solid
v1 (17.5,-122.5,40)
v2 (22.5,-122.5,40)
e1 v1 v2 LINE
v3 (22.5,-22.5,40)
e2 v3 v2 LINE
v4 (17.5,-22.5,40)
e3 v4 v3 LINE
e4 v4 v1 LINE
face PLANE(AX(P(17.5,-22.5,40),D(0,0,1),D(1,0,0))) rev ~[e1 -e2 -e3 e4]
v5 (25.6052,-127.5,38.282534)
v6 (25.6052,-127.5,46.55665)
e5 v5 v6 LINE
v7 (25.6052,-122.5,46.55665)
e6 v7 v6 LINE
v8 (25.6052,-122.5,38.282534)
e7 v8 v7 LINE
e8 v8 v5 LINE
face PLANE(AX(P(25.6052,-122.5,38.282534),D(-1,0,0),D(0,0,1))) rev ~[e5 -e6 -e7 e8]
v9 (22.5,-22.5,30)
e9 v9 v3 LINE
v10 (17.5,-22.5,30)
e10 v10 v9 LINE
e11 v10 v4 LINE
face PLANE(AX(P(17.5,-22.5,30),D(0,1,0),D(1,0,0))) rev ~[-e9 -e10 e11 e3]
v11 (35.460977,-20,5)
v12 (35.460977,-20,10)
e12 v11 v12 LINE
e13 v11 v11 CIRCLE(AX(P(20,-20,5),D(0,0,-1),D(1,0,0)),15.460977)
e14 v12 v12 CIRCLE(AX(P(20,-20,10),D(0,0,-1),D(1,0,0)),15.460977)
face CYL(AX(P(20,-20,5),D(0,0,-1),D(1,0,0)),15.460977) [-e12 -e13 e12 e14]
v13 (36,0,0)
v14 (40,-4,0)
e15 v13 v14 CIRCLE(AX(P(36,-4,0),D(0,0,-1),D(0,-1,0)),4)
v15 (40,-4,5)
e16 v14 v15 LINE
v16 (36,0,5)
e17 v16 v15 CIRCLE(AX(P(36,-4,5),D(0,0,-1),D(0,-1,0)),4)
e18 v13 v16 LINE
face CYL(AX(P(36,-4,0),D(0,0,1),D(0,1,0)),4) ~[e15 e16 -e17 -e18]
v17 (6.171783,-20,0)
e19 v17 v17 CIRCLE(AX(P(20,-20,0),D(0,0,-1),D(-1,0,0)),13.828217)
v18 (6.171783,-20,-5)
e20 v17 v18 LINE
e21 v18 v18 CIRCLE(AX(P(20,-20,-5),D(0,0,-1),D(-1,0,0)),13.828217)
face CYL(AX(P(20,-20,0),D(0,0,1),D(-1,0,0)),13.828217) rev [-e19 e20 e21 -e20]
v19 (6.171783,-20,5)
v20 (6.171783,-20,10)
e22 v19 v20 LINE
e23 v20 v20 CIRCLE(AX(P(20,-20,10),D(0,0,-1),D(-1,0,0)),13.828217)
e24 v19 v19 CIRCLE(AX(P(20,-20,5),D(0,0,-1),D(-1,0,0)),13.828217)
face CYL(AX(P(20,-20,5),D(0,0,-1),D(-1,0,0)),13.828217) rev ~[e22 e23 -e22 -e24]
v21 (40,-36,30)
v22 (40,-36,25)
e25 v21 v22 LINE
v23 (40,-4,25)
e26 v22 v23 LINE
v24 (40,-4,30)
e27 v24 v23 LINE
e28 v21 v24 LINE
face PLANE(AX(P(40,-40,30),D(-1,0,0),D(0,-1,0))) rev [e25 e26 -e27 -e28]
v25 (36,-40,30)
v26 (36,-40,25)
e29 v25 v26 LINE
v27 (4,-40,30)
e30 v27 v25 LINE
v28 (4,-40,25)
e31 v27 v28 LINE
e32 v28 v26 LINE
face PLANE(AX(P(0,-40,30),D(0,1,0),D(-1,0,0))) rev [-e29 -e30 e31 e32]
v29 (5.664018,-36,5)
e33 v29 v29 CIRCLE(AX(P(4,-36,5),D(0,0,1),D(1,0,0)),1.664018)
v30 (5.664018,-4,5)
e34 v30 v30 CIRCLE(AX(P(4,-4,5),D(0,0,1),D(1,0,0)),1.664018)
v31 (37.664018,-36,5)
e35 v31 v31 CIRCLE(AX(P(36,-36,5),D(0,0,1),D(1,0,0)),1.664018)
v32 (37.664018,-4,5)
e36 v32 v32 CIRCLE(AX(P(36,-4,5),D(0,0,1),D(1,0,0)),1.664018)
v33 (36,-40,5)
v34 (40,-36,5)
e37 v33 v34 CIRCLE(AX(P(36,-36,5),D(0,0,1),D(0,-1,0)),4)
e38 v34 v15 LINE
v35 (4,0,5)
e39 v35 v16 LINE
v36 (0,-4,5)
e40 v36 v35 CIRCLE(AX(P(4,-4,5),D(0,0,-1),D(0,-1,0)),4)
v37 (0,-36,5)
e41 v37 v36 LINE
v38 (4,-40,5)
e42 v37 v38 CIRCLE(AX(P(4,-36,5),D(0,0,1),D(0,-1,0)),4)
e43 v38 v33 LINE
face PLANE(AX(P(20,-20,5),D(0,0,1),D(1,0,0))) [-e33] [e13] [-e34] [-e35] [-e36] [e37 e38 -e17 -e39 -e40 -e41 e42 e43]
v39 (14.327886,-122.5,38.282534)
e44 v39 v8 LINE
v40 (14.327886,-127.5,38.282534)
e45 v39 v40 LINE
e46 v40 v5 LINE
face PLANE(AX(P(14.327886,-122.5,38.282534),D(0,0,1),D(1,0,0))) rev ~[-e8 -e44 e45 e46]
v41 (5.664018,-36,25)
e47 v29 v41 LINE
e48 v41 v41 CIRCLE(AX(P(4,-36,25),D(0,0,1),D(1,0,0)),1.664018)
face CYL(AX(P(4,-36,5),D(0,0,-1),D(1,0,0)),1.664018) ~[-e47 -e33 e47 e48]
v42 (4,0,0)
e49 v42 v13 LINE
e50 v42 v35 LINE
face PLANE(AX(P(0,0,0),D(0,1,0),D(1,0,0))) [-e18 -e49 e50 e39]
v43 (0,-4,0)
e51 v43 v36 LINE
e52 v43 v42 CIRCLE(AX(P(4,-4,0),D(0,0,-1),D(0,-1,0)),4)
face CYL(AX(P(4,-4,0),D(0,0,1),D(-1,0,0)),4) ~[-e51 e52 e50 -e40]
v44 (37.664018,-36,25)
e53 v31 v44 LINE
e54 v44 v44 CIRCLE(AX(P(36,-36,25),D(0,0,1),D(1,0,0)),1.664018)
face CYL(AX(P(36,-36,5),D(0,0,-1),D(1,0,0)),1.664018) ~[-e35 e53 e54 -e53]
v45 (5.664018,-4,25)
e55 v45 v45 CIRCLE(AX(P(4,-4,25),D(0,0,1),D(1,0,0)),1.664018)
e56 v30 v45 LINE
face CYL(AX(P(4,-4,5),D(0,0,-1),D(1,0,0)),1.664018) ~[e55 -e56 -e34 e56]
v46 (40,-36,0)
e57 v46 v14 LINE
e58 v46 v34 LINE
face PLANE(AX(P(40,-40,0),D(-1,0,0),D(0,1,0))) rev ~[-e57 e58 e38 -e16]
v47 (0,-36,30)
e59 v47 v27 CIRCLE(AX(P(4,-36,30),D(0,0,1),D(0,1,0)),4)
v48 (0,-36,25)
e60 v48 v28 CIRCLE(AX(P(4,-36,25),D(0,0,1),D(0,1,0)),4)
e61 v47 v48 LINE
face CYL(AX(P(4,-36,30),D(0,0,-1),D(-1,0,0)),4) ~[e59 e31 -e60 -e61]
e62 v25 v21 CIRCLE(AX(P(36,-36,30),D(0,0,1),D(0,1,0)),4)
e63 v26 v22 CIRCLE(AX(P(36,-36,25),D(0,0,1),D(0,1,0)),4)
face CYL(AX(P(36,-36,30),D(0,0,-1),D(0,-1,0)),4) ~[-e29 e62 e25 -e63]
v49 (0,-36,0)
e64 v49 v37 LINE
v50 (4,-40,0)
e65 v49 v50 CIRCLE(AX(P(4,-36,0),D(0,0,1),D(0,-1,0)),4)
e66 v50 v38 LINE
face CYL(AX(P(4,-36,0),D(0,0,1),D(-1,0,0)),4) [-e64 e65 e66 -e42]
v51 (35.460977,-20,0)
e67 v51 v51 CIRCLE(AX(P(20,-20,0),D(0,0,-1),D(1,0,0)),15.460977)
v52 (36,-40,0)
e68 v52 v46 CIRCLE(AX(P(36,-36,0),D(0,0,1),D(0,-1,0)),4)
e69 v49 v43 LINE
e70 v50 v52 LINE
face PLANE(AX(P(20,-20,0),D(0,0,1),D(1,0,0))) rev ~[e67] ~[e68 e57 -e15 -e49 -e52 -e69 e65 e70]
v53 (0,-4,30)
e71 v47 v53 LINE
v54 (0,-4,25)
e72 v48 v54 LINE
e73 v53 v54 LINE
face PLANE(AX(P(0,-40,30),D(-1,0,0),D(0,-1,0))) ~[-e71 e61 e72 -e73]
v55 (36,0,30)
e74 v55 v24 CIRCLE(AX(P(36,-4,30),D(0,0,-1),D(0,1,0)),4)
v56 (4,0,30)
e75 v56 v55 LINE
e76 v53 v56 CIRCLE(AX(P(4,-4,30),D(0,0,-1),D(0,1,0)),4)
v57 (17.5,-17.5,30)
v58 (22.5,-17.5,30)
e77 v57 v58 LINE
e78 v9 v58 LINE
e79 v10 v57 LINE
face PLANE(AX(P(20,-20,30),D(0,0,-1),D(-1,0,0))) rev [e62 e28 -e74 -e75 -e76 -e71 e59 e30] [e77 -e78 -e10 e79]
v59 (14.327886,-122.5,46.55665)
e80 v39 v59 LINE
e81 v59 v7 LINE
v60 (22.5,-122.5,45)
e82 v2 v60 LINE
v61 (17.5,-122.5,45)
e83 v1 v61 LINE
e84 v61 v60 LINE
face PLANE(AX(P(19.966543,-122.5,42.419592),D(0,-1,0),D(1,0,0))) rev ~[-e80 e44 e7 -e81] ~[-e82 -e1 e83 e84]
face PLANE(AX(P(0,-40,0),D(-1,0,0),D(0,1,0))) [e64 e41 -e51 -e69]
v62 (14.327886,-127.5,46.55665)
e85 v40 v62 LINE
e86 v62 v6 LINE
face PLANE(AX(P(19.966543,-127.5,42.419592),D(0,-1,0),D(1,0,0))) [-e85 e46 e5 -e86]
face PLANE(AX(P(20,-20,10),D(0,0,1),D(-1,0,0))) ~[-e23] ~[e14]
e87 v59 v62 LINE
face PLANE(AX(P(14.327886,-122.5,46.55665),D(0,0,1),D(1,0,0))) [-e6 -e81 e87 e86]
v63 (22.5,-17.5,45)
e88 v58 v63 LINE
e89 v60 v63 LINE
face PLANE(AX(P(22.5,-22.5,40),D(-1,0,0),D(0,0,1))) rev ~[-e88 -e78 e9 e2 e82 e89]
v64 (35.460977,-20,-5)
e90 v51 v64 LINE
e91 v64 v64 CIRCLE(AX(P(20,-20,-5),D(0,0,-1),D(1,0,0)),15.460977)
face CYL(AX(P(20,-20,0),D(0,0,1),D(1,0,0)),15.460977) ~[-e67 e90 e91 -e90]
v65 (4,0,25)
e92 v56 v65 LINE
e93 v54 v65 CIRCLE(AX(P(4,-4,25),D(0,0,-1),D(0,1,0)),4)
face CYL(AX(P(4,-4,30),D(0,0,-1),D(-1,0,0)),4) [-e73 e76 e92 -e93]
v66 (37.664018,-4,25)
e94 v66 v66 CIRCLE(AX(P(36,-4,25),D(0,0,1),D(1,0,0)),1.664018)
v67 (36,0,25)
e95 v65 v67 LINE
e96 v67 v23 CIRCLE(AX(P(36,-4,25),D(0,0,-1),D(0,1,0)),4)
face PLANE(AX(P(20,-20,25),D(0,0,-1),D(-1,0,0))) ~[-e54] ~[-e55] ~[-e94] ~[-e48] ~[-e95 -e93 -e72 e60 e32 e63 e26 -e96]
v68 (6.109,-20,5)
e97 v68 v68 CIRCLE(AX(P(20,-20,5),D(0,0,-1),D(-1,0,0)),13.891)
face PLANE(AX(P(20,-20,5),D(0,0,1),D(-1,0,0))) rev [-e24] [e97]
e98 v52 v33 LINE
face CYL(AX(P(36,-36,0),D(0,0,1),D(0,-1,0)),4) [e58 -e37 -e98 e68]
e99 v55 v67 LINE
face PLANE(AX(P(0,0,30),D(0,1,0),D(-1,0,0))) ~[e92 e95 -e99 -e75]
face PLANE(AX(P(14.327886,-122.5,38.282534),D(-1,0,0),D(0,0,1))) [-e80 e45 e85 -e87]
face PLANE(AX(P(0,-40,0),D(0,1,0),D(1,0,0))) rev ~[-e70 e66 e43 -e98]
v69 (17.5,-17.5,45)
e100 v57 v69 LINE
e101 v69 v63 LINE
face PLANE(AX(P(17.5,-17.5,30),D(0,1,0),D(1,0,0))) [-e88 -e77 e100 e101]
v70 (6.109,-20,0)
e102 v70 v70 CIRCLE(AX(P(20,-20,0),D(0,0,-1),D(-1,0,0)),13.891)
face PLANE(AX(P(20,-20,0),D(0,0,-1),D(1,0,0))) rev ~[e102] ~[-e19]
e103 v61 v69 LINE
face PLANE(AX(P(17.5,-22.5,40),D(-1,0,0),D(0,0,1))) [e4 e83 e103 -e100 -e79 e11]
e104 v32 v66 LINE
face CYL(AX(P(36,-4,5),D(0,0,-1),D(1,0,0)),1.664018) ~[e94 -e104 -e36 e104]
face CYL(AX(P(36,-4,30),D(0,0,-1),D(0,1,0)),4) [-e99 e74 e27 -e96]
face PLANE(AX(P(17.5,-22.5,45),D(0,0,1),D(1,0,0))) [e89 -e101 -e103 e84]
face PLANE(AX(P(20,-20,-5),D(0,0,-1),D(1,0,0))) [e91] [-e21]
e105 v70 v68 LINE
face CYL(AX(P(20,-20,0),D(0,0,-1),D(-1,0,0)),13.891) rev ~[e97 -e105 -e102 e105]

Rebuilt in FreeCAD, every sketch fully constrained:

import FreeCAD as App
import Part
import Sketcher

V = App.Vector


def edges_at(feature, points):
    """Names of the edges that pass closest to the given points."""
    edges = feature.Shape.Edges
    near = lambda p: min(range(len(edges)), key=lambda i: edges[i].distToShape(Part.Vertex(*p))[0])
    return sorted({f"Edge{near(p) + 1}" for p in points})

doc = App.newDocument("Part")
body = doc.addObject("PartDesign::Body", "Body")

sketch1 = doc.addObject("Sketcher::SketchObject", "Sketch")
body.addObject(sketch1)
sketch1.AttachmentSupport = (doc.XY_Plane, [""])
sketch1.MapMode = "FlatFace"
sketch1.addGeometry([
    Part.LineSegment(V(0, 0, 0), V(0, -40, 0)),
    Part.LineSegment(V(0, -40, 0), V(40, -40, 0)),
    Part.LineSegment(V(40, -40, 0), V(40, 0, 0)),
    Part.LineSegment(V(40, 0, 0), V(0, 0, 0)),
], False)
sketch1.addConstraint([
    Sketcher.Constraint("Coincident", 0, 2, 1, 1),
    Sketcher.Constraint("Coincident", 1, 2, 2, 1),
    Sketcher.Constraint("Coincident", 2, 2, 3, 1),
    Sketcher.Constraint("Coincident", 3, 2, 0, 1),
    Sketcher.Constraint("Vertical", 0),
    Sketcher.Constraint("Horizontal", 1),
    Sketcher.Constraint("Vertical", 2),
    Sketcher.Constraint("Horizontal", 3),
    Sketcher.Constraint("Coincident", 3, 2, -1, 1),
    Sketcher.Constraint("Equal", 3, 0),
    Sketcher.Constraint("DistanceX", 1, 1, 1, 2, 40.0),
])
pad1 = doc.addObject("PartDesign::Pad", "Pad")
body.addObject(pad1)
pad1.Profile = sketch1
pad1.Length = 5

sketch2 = doc.addObject("Sketcher::SketchObject", "Sketch001")
body.addObject(sketch2)
sketch2.AttachmentSupport = (doc.XY_Plane, [""])
sketch2.MapMode = "FlatFace"
sketch2.addGeometry(Part.Circle(V(20, -20, 0), V(0, 0, 1), 14), False)
sketch2.addConstraint([
    Sketcher.Constraint("Diameter", 0, 27.782),
    Sketcher.Constraint("DistanceX", -1, 1, 0, 3, 20.0),
    Sketcher.Constraint("DistanceY", 0, 3, -1, 1, 20.0),
])
pocket1 = doc.addObject("PartDesign::Pocket", "Pocket")
body.addObject(pocket1)
pocket1.Profile = sketch2
pocket1.Type = "ThroughAll"
pocket1.Reversed = True

sketch3 = doc.addObject("Sketcher::SketchObject", "Sketch002")
body.addObject(sketch3)
sketch3.AttachmentSupport = (doc.XY_Plane, [""])
sketch3.MapMode = "FlatFace"
sketch3.AttachmentOffset = App.Placement(V(0, 0, 5), App.Rotation())
sketch3.addGeometry([
    Part.Circle(V(4, -4, 0), V(0, 0, 1), 1.7),
    Part.Circle(V(36, -4, 0), V(0, 0, 1), 1.7),
    Part.Circle(V(36, -36, 0), V(0, 0, 1), 1.7),
    Part.Circle(V(4, -36, 0), V(0, 0, 1), 1.7),
], False)
sketch3.addConstraint([
    Sketcher.Constraint("Equal", 0, 1),
    Sketcher.Constraint("Equal", 1, 2),
    Sketcher.Constraint("Equal", 2, 3),
    Sketcher.Constraint("Horizontal", 0, 3, 1, 3),
    Sketcher.Constraint("Horizontal", 2, 3, 3, 3),
    Sketcher.Constraint("Vertical", 1, 3, 2, 3),
    Sketcher.Constraint("Vertical", 0, 3, 3, 3),
    Sketcher.Constraint("DistanceX", -1, 1, 0, 3, 4.0),
    Sketcher.Constraint("DistanceY", 0, 3, -1, 1, 4.0),
    Sketcher.Constraint("DistanceX", -1, 1, 1, 3, 36.0),
    Sketcher.Constraint("DistanceY", 2, 3, -1, 1, 36.0),
    Sketcher.Constraint("Diameter", 0, 3.328035),
])
pad2 = doc.addObject("PartDesign::Pad", "Pad001")
body.addObject(pad2)
pad2.Profile = sketch3
pad2.Length = 20
doc.recompute()

datumplane = doc.addObject("PartDesign::Plane", "DatumPlane")
body.addObject(datumplane)
datumplane.AttachmentSupport = (doc.XY_Plane, [""])
datumplane.MapMode = "FlatFace"
datumplane.AttachmentOffset = App.Placement(V(0, 0, 15), App.Rotation())
mirrored = doc.addObject("PartDesign::Mirrored", "Mirrored")
body.addObject(mirrored)
mirrored.Originals = [pad1]
mirrored.MirrorPlane = (datumplane, [""])
body.Tip = mirrored

sketch4 = doc.addObject("Sketcher::SketchObject", "Sketch003")
body.addObject(sketch4)
sketch4.AttachmentSupport = (doc.XY_Plane, [""])
sketch4.MapMode = "FlatFace"
sketch4.AttachmentOffset = App.Placement(V(0, 0, 30), App.Rotation())
sketch4.addGeometry([
    Part.LineSegment(V(18, -18, 0), V(18, -22, 0)),
    Part.LineSegment(V(18, -22, 0), V(22, -22, 0)),
    Part.LineSegment(V(22, -22, 0), V(22, -18, 0)),
    Part.LineSegment(V(22, -18, 0), V(18, -18, 0)),
], False)
sketch4.addConstraint([
    Sketcher.Constraint("Coincident", 0, 2, 1, 1),
    Sketcher.Constraint("Coincident", 1, 2, 2, 1),
    Sketcher.Constraint("Coincident", 2, 2, 3, 1),
    Sketcher.Constraint("Coincident", 3, 2, 0, 1),
    Sketcher.Constraint("Vertical", 0),
    Sketcher.Constraint("Horizontal", 1),
    Sketcher.Constraint("Vertical", 2),
    Sketcher.Constraint("Horizontal", 3),
    Sketcher.Constraint("Equal", 3, 0),
    Sketcher.Constraint("DistanceX", 1, 1, 1, 2, 5.0),
    Sketcher.Constraint("DistanceX", -1, 1, 0, 2, 17.5),
    Sketcher.Constraint("DistanceY", 0, 2, -1, 1, 22.5),
])
pad3 = doc.addObject("PartDesign::Pad", "Pad002")
body.addObject(pad3)
pad3.Profile = sketch4
pad3.Length = 15

sketch5 = doc.addObject("Sketcher::SketchObject", "Sketch004")
body.addObject(sketch5)
sketch5.AttachmentSupport = (doc.XZ_Plane, [""])
sketch5.MapMode = "FlatFace"
sketch5.AttachmentOffset = App.Placement(V(0, 0, 22.5), App.Rotation())
sketch5.addGeometry([
    Part.LineSegment(V(18, 45, 0), V(18, 40, 0)),
    Part.LineSegment(V(18, 40, 0), V(22, 40, 0)),
    Part.LineSegment(V(22, 40, 0), V(22, 45, 0)),
    Part.LineSegment(V(22, 45, 0), V(18, 45, 0)),
], False)
sketch5.addConstraint([
    Sketcher.Constraint("Coincident", 0, 2, 1, 1),
    Sketcher.Constraint("Coincident", 1, 2, 2, 1),
    Sketcher.Constraint("Coincident", 2, 2, 3, 1),
    Sketcher.Constraint("Coincident", 3, 2, 0, 1),
    Sketcher.Constraint("Vertical", 0),
    Sketcher.Constraint("Horizontal", 1),
    Sketcher.Constraint("Vertical", 2),
    Sketcher.Constraint("Horizontal", 3),
    Sketcher.Constraint("Equal", 3, 0),
    Sketcher.Constraint("DistanceX", 1, 1, 1, 2, 5.0),
    Sketcher.Constraint("DistanceY", -1, 1, 0, 2, 40.0),
    Sketcher.Constraint("DistanceX", -1, 1, 0, 2, 17.5),
])
pad4 = doc.addObject("PartDesign::Pad", "Pad003")
body.addObject(pad4)
pad4.Profile = sketch5
pad4.Length = 100

sketch6 = doc.addObject("Sketcher::SketchObject", "Sketch005")
body.addObject(sketch6)
sketch6.AttachmentSupport = (doc.XY_Plane, [""])
sketch6.MapMode = "FlatFace"
sketch6.addGeometry([
    Part.Circle(V(20, -20, 0), V(0, 0, 1), 15),
    Part.Circle(V(20, -20, 0), V(0, 0, 1), 14),
], False)
sketch6.addConstraint([
    Sketcher.Constraint("Coincident", 1, 3, 0, 3),
    Sketcher.Constraint("DistanceX", -1, 1, 0, 3, 20.0),
    Sketcher.Constraint("DistanceY", 0, 3, -1, 1, 20.0),
    Sketcher.Constraint("Diameter", 0, 30.921955),
    Sketcher.Constraint("Diameter", 1, 27.656433),
])
pad5 = doc.addObject("PartDesign::Pad", "Pad004")
body.addObject(pad5)
pad5.Profile = sketch6
pad5.Length = 5
pad5.Reversed = True
doc.recompute()

datumplane2 = doc.addObject("PartDesign::Plane", "DatumPlane001")
body.addObject(datumplane2)
datumplane2.AttachmentSupport = (doc.XY_Plane, [""])
datumplane2.MapMode = "FlatFace"
datumplane2.AttachmentOffset = App.Placement(V(0, 0, 2.5), App.Rotation())
mirrored2 = doc.addObject("PartDesign::Mirrored", "Mirrored001")
body.addObject(mirrored2)
mirrored2.Originals = [pad5]
mirrored2.MirrorPlane = (datumplane2, [""])
body.Tip = mirrored2

sketch7 = doc.addObject("Sketcher::SketchObject", "Sketch006")
body.addObject(sketch7)
sketch7.AttachmentSupport = (doc.XZ_Plane, [""])
sketch7.MapMode = "FlatFace"
sketch7.AttachmentOffset = App.Placement(V(0, 0, 122.5), App.Rotation())
sketch7.addGeometry([
    Part.LineSegment(V(14, 47, 0), V(14, 38, 0)),
    Part.LineSegment(V(14, 38, 0), V(26, 38, 0)),
    Part.LineSegment(V(26, 38, 0), V(26, 47, 0)),
    Part.LineSegment(V(26, 47, 0), V(14, 47, 0)),
], False)
sketch7.addConstraint([
    Sketcher.Constraint("Coincident", 0, 2, 1, 1),
    Sketcher.Constraint("Coincident", 1, 2, 2, 1),
    Sketcher.Constraint("Coincident", 2, 2, 3, 1),
    Sketcher.Constraint("Coincident", 3, 2, 0, 1),
    Sketcher.Constraint("Vertical", 0),
    Sketcher.Constraint("Horizontal", 1),
    Sketcher.Constraint("Vertical", 2),
    Sketcher.Constraint("Horizontal", 3),
    Sketcher.Constraint("DistanceX", -1, 1, 1, 2, 25.6052),
    Sketcher.Constraint("DistanceX", 1, 1, 1, 2, 11.277314),
    Sketcher.Constraint("DistanceY", 0, 2, 0, 1, 8.274116),
    Sketcher.Constraint("DistanceY", -1, 1, 2, 2, 46.55665),
])
pad6 = doc.addObject("PartDesign::Pad", "Pad005")
body.addObject(pad6)
pad6.Profile = sketch7
pad6.Length = 5
doc.recompute()

fillet = doc.addObject("PartDesign::Fillet", "Fillet")
body.addObject(fillet)
fillet.Base = (pad6, edges_at(pad6, [(0, 0, 2.5)]))
fillet.Radius = 4
doc.recompute()

fillet2 = doc.addObject("PartDesign::Fillet", "Fillet001")
body.addObject(fillet2)
fillet2.Base = (fillet, edges_at(fillet, [
    (0, -40, 27.5),
    (0, 0, 27.5),
    (40, 0, 27.5),
    (40, -40, 27.5),
    (40, 0, 2.5),
    (40, -40, 2.5),
    (0, -40, 2.5),
]))
fillet2.Radius = 4

doc.recompute()
